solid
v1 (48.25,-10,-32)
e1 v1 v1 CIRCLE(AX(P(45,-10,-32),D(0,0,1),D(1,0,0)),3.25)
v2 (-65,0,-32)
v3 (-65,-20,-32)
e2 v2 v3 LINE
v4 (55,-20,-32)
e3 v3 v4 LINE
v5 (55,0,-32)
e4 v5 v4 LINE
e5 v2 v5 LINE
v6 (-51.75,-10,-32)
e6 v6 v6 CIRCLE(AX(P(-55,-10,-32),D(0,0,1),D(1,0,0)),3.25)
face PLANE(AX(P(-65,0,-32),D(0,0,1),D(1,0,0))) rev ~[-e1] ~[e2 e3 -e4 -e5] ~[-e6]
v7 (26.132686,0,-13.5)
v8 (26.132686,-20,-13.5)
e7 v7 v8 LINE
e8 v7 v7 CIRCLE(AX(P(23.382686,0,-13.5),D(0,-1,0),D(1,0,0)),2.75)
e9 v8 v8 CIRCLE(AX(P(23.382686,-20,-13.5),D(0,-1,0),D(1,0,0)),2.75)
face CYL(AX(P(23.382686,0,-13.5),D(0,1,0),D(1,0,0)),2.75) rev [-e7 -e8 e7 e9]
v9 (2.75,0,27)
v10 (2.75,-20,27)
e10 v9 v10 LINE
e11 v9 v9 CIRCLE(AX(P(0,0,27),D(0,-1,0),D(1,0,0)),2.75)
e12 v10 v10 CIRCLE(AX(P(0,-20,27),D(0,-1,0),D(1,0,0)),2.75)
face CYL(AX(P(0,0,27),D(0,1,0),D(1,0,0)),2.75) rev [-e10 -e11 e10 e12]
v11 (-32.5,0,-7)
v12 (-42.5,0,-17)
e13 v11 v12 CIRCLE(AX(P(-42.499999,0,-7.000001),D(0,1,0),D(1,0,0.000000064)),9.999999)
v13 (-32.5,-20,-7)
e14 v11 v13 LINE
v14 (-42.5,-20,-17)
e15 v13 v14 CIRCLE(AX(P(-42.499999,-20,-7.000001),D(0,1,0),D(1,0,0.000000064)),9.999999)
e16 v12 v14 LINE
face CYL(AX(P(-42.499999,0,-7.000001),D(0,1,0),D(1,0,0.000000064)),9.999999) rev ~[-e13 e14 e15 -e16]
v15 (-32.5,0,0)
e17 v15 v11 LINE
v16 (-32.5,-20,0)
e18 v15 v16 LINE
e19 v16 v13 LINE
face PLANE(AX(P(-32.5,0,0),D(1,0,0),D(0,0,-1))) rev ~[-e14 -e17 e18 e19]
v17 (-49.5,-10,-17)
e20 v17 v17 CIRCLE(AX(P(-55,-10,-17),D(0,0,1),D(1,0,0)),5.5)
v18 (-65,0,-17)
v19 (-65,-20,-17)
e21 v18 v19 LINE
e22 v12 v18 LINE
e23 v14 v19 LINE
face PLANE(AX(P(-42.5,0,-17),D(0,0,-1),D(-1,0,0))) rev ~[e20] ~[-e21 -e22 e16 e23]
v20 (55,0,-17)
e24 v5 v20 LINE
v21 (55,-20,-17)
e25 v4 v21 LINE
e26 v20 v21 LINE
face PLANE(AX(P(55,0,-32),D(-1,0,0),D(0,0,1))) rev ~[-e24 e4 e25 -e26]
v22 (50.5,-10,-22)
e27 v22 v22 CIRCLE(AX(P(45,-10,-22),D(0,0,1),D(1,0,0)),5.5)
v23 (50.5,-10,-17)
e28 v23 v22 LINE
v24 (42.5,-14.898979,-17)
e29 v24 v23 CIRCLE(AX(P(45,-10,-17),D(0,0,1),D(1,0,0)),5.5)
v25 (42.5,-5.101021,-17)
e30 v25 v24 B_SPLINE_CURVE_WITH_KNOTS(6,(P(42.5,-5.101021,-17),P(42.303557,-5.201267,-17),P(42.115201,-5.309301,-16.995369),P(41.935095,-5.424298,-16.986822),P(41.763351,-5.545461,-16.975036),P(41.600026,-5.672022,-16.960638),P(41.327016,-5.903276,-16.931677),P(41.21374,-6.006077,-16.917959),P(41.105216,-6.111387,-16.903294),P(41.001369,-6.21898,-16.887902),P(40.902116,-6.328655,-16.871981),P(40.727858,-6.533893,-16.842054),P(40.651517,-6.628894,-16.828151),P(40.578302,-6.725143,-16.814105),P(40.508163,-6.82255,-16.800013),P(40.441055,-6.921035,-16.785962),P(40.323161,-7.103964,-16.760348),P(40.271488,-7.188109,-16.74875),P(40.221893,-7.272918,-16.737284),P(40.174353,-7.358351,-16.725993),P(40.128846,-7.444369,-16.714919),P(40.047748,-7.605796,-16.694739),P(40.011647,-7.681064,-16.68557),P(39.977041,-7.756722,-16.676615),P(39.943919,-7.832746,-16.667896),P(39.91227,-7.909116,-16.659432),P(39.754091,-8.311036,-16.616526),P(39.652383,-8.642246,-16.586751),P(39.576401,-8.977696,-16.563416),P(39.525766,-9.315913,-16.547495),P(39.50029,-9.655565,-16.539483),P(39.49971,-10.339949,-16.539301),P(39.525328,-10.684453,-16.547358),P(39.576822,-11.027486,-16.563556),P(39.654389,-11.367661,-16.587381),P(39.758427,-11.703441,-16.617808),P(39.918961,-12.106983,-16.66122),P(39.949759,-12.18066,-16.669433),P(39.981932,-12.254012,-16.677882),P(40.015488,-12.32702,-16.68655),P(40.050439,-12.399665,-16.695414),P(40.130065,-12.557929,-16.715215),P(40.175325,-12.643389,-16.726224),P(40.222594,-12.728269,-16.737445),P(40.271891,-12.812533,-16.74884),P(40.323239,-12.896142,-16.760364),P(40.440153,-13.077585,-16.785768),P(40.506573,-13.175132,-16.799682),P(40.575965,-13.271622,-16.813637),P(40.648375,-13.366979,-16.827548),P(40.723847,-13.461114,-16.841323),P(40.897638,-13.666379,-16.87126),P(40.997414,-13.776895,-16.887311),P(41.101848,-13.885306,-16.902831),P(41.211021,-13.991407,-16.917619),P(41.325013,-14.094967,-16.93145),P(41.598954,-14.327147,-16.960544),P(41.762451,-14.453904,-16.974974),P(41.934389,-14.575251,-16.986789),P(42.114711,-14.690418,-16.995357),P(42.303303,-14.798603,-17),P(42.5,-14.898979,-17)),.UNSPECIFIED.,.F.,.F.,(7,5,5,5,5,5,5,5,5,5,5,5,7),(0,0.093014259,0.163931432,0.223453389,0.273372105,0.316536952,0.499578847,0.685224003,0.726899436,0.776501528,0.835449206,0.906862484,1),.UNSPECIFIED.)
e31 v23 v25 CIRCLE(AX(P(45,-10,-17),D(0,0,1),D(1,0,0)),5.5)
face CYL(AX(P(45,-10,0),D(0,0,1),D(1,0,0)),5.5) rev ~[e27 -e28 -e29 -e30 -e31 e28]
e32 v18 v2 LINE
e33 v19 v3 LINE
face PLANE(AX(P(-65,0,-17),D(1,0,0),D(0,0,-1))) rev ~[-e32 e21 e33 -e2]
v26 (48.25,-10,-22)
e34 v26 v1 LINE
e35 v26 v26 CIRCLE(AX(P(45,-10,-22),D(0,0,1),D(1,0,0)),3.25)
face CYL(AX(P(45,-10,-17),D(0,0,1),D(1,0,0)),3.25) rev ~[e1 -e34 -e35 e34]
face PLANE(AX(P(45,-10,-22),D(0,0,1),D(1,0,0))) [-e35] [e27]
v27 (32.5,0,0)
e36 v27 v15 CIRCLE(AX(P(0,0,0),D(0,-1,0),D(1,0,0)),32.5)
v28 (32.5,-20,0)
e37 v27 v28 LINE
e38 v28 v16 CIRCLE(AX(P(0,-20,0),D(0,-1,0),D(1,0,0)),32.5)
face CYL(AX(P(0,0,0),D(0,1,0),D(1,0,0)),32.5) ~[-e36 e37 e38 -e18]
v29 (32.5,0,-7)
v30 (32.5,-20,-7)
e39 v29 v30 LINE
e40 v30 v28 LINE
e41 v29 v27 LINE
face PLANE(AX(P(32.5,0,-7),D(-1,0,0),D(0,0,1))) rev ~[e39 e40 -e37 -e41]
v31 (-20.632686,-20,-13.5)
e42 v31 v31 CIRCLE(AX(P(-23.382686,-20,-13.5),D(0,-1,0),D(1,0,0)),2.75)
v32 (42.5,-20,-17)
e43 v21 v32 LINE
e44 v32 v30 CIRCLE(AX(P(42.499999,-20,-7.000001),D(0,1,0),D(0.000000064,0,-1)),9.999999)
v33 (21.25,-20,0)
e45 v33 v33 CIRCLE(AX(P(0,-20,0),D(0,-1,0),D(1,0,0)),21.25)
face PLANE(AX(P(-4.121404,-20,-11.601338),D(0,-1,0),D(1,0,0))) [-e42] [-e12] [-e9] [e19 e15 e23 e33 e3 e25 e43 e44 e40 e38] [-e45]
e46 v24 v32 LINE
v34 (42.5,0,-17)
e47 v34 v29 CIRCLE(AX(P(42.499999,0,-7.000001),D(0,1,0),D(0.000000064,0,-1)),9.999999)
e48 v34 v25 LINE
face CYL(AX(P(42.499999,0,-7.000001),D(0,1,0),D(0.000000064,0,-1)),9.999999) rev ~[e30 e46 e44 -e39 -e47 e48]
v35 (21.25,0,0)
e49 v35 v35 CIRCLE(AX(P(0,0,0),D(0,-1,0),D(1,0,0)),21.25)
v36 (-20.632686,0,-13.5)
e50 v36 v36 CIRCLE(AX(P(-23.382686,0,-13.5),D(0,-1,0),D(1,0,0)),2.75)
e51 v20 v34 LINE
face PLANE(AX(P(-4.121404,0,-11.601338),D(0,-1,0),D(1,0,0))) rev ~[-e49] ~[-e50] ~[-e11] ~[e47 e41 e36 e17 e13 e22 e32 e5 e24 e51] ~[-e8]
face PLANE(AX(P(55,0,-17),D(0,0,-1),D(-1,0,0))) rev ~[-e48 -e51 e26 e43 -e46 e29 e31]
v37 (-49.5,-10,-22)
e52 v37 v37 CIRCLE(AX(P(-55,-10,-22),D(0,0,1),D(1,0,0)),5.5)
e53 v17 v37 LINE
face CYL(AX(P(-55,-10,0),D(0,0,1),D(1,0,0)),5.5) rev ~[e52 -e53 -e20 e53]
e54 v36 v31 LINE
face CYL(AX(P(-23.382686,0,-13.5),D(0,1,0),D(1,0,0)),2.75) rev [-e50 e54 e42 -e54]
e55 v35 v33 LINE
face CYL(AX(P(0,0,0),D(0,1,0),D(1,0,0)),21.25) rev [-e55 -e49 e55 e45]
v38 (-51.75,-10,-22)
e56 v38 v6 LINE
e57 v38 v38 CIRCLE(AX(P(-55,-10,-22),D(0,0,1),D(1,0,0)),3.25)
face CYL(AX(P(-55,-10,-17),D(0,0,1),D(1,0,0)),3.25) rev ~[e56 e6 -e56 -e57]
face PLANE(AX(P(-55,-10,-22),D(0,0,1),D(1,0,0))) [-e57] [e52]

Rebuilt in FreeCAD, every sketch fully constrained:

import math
import FreeCAD as App
import Part
import Sketcher

V = App.Vector
Q = App.Units.Quantity

doc = App.newDocument("Part")
body = doc.addObject("PartDesign::Body", "Body")

sketch1 = doc.addObject("Sketcher::SketchObject", "Sketch")
body.addObject(sketch1)
sketch1.AttachmentSupport = (doc.XZ_Plane, [""])
sketch1.MapMode = "FlatFace"
sketch1.addGeometry([
    Part.LineSegment(V(32.5, -7, 0), V(32.5, 0, 0)),
    Part.ArcOfCircle(Part.Circle(V(0, 0, 0), V(0, 0, 1), 32.5), math.radians(0), math.radians(180)),
    Part.LineSegment(V(-32.5, 0, 0), V(-32.5, -7, 0)),
    Part.ArcOfCircle(Part.Circle(V(-42.5, -7, 0), V(0, 0, 1), 10), math.radians(-90), math.radians(0)),
    Part.LineSegment(V(-42.5, -17, 0), V(-65, -17, 0)),
    Part.LineSegment(V(-65, -17, 0), V(-65, -32, 0)),
    Part.LineSegment(V(-65, -32, 0), V(55, -32, 0)),
    Part.LineSegment(V(55, -32, 0), V(55, -17, 0)),
    Part.LineSegment(V(55, -17, 0), V(42.5, -17, 0)),
    Part.ArcOfCircle(Part.Circle(V(42.5, -7, 0), V(0, 0, 1), 10), math.radians(180), math.radians(270)),
    Part.Circle(V(-23.4, -13.5, 0), V(0, 0, 1), 2.8),
    Part.Circle(V(0, 0, 0), V(0, 0, 1), 21.2),
    Part.Circle(V(23.4, -13.5, 0), V(0, 0, 1), 2.8),
    Part.Circle(V(0, 27, 0), V(0, 0, 1), 2.8),
], False)
sketch1.addConstraint([
    Sketcher.Constraint("Tangent", 0, 2, 1, 1),
    Sketcher.Constraint("Tangent", 1, 2, 2, 1),
    Sketcher.Constraint("Tangent", 2, 2, 3, 2),
    Sketcher.Constraint("Tangent", 3, 1, 4, 1),
    Sketcher.Constraint("Coincident", 4, 2, 5, 1),
    Sketcher.Constraint("Coincident", 5, 2, 6, 1),
    Sketcher.Constraint("Coincident", 6, 2, 7, 1),
    Sketcher.Constraint("Coincident", 7, 2, 8, 1),
    Sketcher.Constraint("Tangent", 8, 2, 9, 2),
    Sketcher.Constraint("Tangent", 9, 1, 0, 1),
    Sketcher.Constraint("Vertical", 0),
    Sketcher.Constraint("Vertical", 2),
    Sketcher.Constraint("Horizontal", 4),
    Sketcher.Constraint("Vertical", 5),
    Sketcher.Constraint("Horizontal", 6),
    Sketcher.Constraint("Vertical", 7),
    Sketcher.Constraint("Horizontal", 8),
    Sketcher.Constraint("Coincident", 1, 3, -1, 1),
    Sketcher.Constraint("Coincident", 11, 3, -1, 1),
    Sketcher.Constraint("Equal", 3, 9),
    Sketcher.Constraint("Equal", 10, 12),
    Sketcher.Constraint("Equal", 12, 13),
    Sketcher.Constraint("Symmetric", 10, 3, 12, 3, -2),
    Sketcher.Constraint("PointOnObject", 13, 3, -2),
    Sketcher.Constraint("Horizontal", 3, 3, 9, 3),
    Sketcher.Constraint("Radius", 3, Q("9.999999 mm")),
    Sketcher.Constraint("Diameter", 10, Q("5.5 mm")),
    Sketcher.Constraint("Diameter", 11, Q("42.5 mm")),
    Sketcher.Constraint("Radius", 1, Q("32.5 mm")),
    Sketcher.Constraint("DistanceX", 6, 1, 6, 2, Q("120 mm")),
    Sketcher.Constraint("DistanceY", 0, 1, 0, 2, Q("7 mm")),
    Sketcher.Constraint("DistanceY", 5, 2, 5, 1, Q("15 mm")),
    Sketcher.Constraint("DistanceX", 4, 2, 4, 1, Q("22.5 mm")),
    Sketcher.Constraint("DistanceY", -1, 1, 13, 3, Q("27 mm")),
    Sketcher.Constraint("DistanceY", 10, 3, -1, 1, Q("13.5 mm")),
    Sketcher.Constraint("DistanceX", 10, 3, -1, 1, Q("23.382686 mm")),
])
pad1 = doc.addObject("PartDesign::Pad", "Pad")
body.addObject(pad1)
pad1.Profile = sketch1
pad1.Length = 20

sketch2 = doc.addObject("Sketcher::SketchObject", "Sketch001")
body.addObject(sketch2)
sketch2.AttachmentSupport = (doc.XY_Plane, [""])
sketch2.MapMode = "FlatFace"
sketch2.AttachmentOffset = App.Placement(V(0, 0, -17), App.Rotation())
sketch2.addGeometry([
    Part.Circle(V(-55, -10, 0), V(0, 0, 1), 3.2),
    Part.Circle(V(45, -10, 0), V(0, 0, 1), 3.2),
], False)
sketch2.addConstraint([
    Sketcher.Constraint("Equal", 0, 1),
    Sketcher.Constraint("Horizontal", 0, 3, 1, 3),
    Sketcher.Constraint("Diameter", 0, Q("6.5 mm")),
    Sketcher.Constraint("DistanceX", 0, 3, -1, 1, Q("55 mm")),
    Sketcher.Constraint("DistanceY", 0, 3, -1, 1, Q("10 mm")),
    Sketcher.Constraint("DistanceX", -1, 1, 1, 3, Q("45 mm")),
])
pocket1 = doc.addObject("PartDesign::Pocket", "Pocket")
body.addObject(pocket1)
pocket1.Profile = sketch2
pocket1.Length = 25

sketch3 = doc.addObject("Sketcher::SketchObject", "Sketch002")
body.addObject(sketch3)
sketch3.AttachmentSupport = (doc.XY_Plane, [""])
sketch3.MapMode = "FlatFace"
sketch3.addGeometry([
    Part.Circle(V(-55, -10, 0), V(0, 0, 1), 6),
    Part.Circle(V(45, -10, 0), V(0, 0, 1), 6),
], False)
sketch3.addConstraint([
    Sketcher.Constraint("Equal", 0, 1),
    Sketcher.Constraint("Horizontal", 0, 3, 1, 3),
    Sketcher.Constraint("Diameter", 0, Q("11 mm")),
    Sketcher.Constraint("DistanceX", 0, 3, -1, 1, Q("55 mm")),
    Sketcher.Constraint("DistanceY", 0, 3, -1, 1, Q("10 mm")),
    Sketcher.Constraint("DistanceX", -1, 1, 1, 3, Q("45 mm")),
])
pocket2 = doc.addObject("PartDesign::Pocket", "Pocket001")
body.addObject(pocket2)
pocket2.Profile = sketch3
pocket2.Length = 22

doc.recompute()
